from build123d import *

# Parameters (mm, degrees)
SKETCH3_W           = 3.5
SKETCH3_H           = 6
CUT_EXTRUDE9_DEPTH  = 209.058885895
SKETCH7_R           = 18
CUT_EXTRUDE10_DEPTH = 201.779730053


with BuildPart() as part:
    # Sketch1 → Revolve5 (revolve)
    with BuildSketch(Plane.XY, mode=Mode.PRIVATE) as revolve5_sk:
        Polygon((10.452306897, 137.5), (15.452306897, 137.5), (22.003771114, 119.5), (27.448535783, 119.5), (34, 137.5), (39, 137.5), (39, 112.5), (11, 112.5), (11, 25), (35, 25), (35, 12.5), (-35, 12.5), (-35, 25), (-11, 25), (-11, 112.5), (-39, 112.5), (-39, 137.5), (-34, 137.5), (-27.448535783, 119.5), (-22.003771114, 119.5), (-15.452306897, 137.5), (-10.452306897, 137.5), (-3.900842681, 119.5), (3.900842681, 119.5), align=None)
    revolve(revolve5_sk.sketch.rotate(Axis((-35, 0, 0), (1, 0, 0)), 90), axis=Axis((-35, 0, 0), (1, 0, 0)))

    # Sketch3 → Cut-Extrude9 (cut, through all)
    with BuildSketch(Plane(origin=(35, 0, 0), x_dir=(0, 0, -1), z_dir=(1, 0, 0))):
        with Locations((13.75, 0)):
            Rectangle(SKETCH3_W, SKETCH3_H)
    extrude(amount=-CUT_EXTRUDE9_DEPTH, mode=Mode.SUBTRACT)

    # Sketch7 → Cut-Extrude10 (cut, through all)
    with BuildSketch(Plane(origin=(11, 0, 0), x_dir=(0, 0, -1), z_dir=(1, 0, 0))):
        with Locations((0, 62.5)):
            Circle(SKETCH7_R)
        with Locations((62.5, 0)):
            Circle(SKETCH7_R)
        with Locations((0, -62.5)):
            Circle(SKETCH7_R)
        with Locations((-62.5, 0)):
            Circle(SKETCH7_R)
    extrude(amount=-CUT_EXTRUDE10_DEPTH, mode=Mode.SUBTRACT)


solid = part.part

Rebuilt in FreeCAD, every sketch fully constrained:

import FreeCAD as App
import Part
import Sketcher

V = App.Vector
Q = App.Units.Quantity


def add_polygon(sketch, points):
    """Adds a closed chain of lines whose ends are joined by coincident constraints."""
    first, n = sketch.GeometryCount, len(points)
    for a, b in zip(points, points[1:] + points[:1]):
        sketch.addGeometry(Part.LineSegment(App.Vector(*a, 0), App.Vector(*b, 0)), False)
    for i in range(n):
        sketch.addConstraint(Sketcher.Constraint("Coincident", first + i, 2, first + (i + 1) % n, 1))

doc = App.newDocument("Part")
params = doc.addObject("Spreadsheet::Sheet", "Params")
for row, (alias, value) in enumerate([
    ("sketch1_width", "5 mm"),
    ("sketch1_width2", "28 mm"),
    ("sketch1_width3", "24 mm"),
    ("sketch1_width4", "70 mm"),
    ("sketch1_height", "25 mm"),
    ("revolution_angle", "360 deg"),
    ("sketch2_width", "6 mm"),
    ("sketch2_height", "3.5 mm"),
    ("sketch3_diameter", "36 mm"),
], start=1):
    params.set(f"A{row}", alias)
    params.set(f"B{row}", "=" + value)
    params.setAlias(f"B{row}", alias)

body = doc.addObject("PartDesign::Body", "Body")

# Sketch on XY plane
sketch1 = body.newObject("Sketcher::SketchObject", "Sketch")
sketch1.AttachmentSupport = (doc.getObject("XY_Plane"), [""])
sketch1.MapMode = "FlatFace"
add_polygon(sketch1, [(15.452307, 137.5), (10.452307, 137.5), (3.900843, 119.5), (-3.900843, 119.5), (-10.452307, 137.5), (-15.452307, 137.5), (-22.003771, 119.5), (-27.448536, 119.5), (-34, 137.5), (-39, 137.5), (-39, 112.5), (-11, 112.5), (-11, 25), (-35, 25), (-35, 12.5), (35, 12.5), (35, 25), (11, 25), (11, 112.5), (39, 112.5), (39, 137.5), (34, 137.5), (27.448536, 119.5), (22.003771, 119.5)])  # lines 0-23
sketch1.addConstraint([
    Sketcher.Constraint("Horizontal", 0),
    Sketcher.Constraint("Horizontal", 2),
    Sketcher.Constraint("Horizontal", 4),
    Sketcher.Constraint("Horizontal", 6),
    Sketcher.Constraint("Horizontal", 8),
    Sketcher.Constraint("Vertical", 9),
    Sketcher.Constraint("Horizontal", 10),
    Sketcher.Constraint("Vertical", 11),
    Sketcher.Constraint("Horizontal", 12),
    Sketcher.Constraint("Vertical", 13),
    Sketcher.Constraint("Horizontal", 14),
    Sketcher.Constraint("Vertical", 15),
    Sketcher.Constraint("Horizontal", 16),
    Sketcher.Constraint("Vertical", 17),
    Sketcher.Constraint("Horizontal", 18),
    Sketcher.Constraint("Vertical", 19),
    Sketcher.Constraint("Horizontal", 20),
    Sketcher.Constraint("Horizontal", 22),
    Sketcher.Constraint("Symmetric", 0, 2, 3, 2, -2),
    Sketcher.Constraint("Symmetric", 12, 2, 15, 2, -2),
    Sketcher.Constraint("Symmetric", 10, 2, 17, 2, -2),
    Sketcher.Constraint("Symmetric", 8, 2, 19, 2, -2),
    Sketcher.Constraint("Symmetric", 6, 2, 21, 2, -2),
    Sketcher.Constraint("Parallel", 1, 5),
    Sketcher.Constraint("Parallel", 3, 7),
    Sketcher.Constraint("Parallel", 5, 21),
    Sketcher.Constraint("Parallel", 7, 23),
    Sketcher.Constraint("Horizontal", 2, 2, 5, 2),
    Sketcher.Constraint("Horizontal", 4, 2, 7, 2),
    Sketcher.Constraint("Equal", 0, 4),
    Sketcher.Constraint("Equal", 4, 8),
    Sketcher.Constraint("Equal", 8, 20),
    Sketcher.Constraint("DistanceX", 0, 2, 0, 1, Q("5 mm")),
    Sketcher.Constraint("DistanceX", 10, 1, 10, 2, Q("28 mm")),
    Sketcher.Constraint("DistanceX", 12, 2, 12, 1, Q("24 mm")),
    Sketcher.Constraint("DistanceX", 14, 1, 14, 2, Q("70 mm")),
    Sketcher.Constraint("DistanceY", 9, 2, 9, 1, Q("25 mm")),
    Sketcher.Constraint("Angle", 1, Q("-110 deg")),
    Sketcher.Constraint("DistanceY", 11, 2, 11, 1, Q("87.5 mm")),
    Sketcher.Constraint("DistanceY", 13, 2, 13, 1, Q("12.5 mm")),
    Sketcher.Constraint("DistanceY", -1, 1, 11, 2, Q("25 mm")),
    Sketcher.Constraint("DistanceY", 1, 2, 0, 2, Q("18 mm")),
    Sketcher.Constraint("DistanceX", 2, 2, 2, 1, Q("7.801685 mm")),
])
sketch1.setExpression("Constraints[56]", "Params.sketch1_width")
sketch1.setExpression("Constraints[57]", "Params.sketch1_width2")
sketch1.setExpression("Constraints[58]", "Params.sketch1_width3")
sketch1.setExpression("Constraints[59]", "Params.sketch1_width4")
sketch1.setExpression("Constraints[60]", "Params.sketch1_height")
revolution = body.newObject("PartDesign::Revolution", "Revolution")
revolution.Profile = sketch1
revolution.ReferenceAxis = (sketch1, ["H_Axis"])
revolution.setExpression("Angle", "Params.revolution_angle")

# Sketch on YZ plane
sketch2 = body.newObject("Sketcher::SketchObject", "Sketch001")
sketch2.AttachmentSupport = (doc.getObject("YZ_Plane"), [""])
sketch2.MapMode = "FlatFace"
sketch2.AttachmentOffset = App.Placement(V(0, 0, 35), App.Rotation())
add_polygon(sketch2, [(3, -12), (-3, -12), (-3, -15.5), (3, -15.5)])  # lines 0-3
sketch2.addConstraint([
    Sketcher.Constraint("Horizontal", 0),
    Sketcher.Constraint("Vertical", 1),
    Sketcher.Constraint("Horizontal", 2),
    Sketcher.Constraint("Vertical", 3),
    Sketcher.Constraint("DistanceX", 0, 2, 0, 1, Q("6 mm")),
    Sketcher.Constraint("DistanceY", 1, 2, 1, 1, Q("3.5 mm")),
    Sketcher.Constraint("DistanceX", 0, 2, -1, 1, Q("3 mm")),
    Sketcher.Constraint("DistanceY", 0, 2, -1, 1, Q("12 mm")),
])
sketch2.setExpression("Constraints[8]", "Params.sketch2_width")
sketch2.setExpression("Constraints[9]", "Params.sketch2_height")
pocket1 = body.newObject("PartDesign::Pocket", "Pocket")
pocket1.Profile = sketch2
pocket1.Type = "ThroughAll"

# Sketch on YZ plane
sketch3 = body.newObject("Sketcher::SketchObject", "Sketch002")
sketch3.AttachmentSupport = (doc.getObject("YZ_Plane"), [""])
sketch3.MapMode = "FlatFace"
sketch3.AttachmentOffset = App.Placement(V(0, 0, 11), App.Rotation())
sketch3.addGeometry([
    Part.Circle(V(62.5, 0, 0), V(0, 0, 1), 18),
    Part.Circle(V(0, -62.5, 0), V(0, 0, 1), 18),
    Part.Circle(V(-62.5, 0, 0), V(0, 0, 1), 18),
    Part.Circle(V(0, 62.5, 0), V(0, 0, 1), 18),
], False)
sketch3.addConstraint([
    Sketcher.Constraint("Equal", 0, 1),
    Sketcher.Constraint("Equal", 1, 2),
    Sketcher.Constraint("Equal", 2, 3),
    Sketcher.Constraint("Symmetric", 0, 3, 2, 3, -1, 1),
    Sketcher.Constraint("Symmetric", 1, 3, 3, 3, -1, 1),
    Sketcher.Constraint("PointOnObject", 0, 3, -1),
    Sketcher.Constraint("PointOnObject", 1, 3, -2),
    Sketcher.Constraint("Diameter", 0, Q("36 mm")),
    Sketcher.Constraint("DistanceX", 2, 3, 0, 3, Q("125 mm")),
    Sketcher.Constraint("DistanceY", 1, 3, 3, 3, Q("125 mm")),
])
sketch3.setExpression("Constraints[7]", "Params.sketch3_diameter")
pocket2 = body.newObject("PartDesign::Pocket", "Pocket001")
pocket2.Profile = sketch3
pocket2.Type = "ThroughAll"

doc.recompute()
